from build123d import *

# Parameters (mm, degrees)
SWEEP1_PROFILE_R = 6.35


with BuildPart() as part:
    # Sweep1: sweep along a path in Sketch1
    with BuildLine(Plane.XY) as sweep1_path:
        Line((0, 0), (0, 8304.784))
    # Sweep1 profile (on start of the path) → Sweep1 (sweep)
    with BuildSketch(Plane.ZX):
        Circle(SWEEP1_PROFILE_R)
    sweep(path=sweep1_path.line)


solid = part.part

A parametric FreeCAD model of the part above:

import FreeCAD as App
import Part
import Sketcher

V = App.Vector
Q = App.Units.Quantity

doc = App.newDocument("Part")
body = doc.addObject("PartDesign::Body", "Body")

# Sketch on XZ plane
sketch1 = body.newObject("Sketcher::SketchObject", "Sketch")
sketch1.AttachmentSupport = (doc.getObject("XZ_Plane"), [""])
sketch1.MapMode = "FlatFace"
sketch1.addGeometry(Part.Circle(V(0, 0, 0), V(0, 0, 1), 6), False)
sketch1.addConstraint([
    Sketcher.Constraint("Coincident", 0, 3, -1, 1),
    Sketcher.Constraint("Diameter", 0, Q("0.5 in")),
])

# Sketch on XY plane
sketch2 = body.newObject("Sketcher::SketchObject", "Sketch001")
sketch2.AttachmentSupport = (doc.getObject("XY_Plane"), [""])
sketch2.MapMode = "FlatFace"
sketch2.addGeometry(Part.LineSegment(V(0, 0, 0), V(0, 8305, 0)), False)
sketch2.addConstraint([
    Sketcher.Constraint("Vertical", 0),
    Sketcher.Constraint("Coincident", 0, 1, -1, 1),
    Sketcher.Constraint("DistanceY", 0, 1, 0, 2, Q("326.96 in")),
])
doc.recompute()

additivepipe = body.newObject("PartDesign::AdditivePipe", "AdditivePipe")
additivepipe.Profile = sketch1
additivepipe.Spine = (sketch2, ["Edge1"])

doc.recompute()
